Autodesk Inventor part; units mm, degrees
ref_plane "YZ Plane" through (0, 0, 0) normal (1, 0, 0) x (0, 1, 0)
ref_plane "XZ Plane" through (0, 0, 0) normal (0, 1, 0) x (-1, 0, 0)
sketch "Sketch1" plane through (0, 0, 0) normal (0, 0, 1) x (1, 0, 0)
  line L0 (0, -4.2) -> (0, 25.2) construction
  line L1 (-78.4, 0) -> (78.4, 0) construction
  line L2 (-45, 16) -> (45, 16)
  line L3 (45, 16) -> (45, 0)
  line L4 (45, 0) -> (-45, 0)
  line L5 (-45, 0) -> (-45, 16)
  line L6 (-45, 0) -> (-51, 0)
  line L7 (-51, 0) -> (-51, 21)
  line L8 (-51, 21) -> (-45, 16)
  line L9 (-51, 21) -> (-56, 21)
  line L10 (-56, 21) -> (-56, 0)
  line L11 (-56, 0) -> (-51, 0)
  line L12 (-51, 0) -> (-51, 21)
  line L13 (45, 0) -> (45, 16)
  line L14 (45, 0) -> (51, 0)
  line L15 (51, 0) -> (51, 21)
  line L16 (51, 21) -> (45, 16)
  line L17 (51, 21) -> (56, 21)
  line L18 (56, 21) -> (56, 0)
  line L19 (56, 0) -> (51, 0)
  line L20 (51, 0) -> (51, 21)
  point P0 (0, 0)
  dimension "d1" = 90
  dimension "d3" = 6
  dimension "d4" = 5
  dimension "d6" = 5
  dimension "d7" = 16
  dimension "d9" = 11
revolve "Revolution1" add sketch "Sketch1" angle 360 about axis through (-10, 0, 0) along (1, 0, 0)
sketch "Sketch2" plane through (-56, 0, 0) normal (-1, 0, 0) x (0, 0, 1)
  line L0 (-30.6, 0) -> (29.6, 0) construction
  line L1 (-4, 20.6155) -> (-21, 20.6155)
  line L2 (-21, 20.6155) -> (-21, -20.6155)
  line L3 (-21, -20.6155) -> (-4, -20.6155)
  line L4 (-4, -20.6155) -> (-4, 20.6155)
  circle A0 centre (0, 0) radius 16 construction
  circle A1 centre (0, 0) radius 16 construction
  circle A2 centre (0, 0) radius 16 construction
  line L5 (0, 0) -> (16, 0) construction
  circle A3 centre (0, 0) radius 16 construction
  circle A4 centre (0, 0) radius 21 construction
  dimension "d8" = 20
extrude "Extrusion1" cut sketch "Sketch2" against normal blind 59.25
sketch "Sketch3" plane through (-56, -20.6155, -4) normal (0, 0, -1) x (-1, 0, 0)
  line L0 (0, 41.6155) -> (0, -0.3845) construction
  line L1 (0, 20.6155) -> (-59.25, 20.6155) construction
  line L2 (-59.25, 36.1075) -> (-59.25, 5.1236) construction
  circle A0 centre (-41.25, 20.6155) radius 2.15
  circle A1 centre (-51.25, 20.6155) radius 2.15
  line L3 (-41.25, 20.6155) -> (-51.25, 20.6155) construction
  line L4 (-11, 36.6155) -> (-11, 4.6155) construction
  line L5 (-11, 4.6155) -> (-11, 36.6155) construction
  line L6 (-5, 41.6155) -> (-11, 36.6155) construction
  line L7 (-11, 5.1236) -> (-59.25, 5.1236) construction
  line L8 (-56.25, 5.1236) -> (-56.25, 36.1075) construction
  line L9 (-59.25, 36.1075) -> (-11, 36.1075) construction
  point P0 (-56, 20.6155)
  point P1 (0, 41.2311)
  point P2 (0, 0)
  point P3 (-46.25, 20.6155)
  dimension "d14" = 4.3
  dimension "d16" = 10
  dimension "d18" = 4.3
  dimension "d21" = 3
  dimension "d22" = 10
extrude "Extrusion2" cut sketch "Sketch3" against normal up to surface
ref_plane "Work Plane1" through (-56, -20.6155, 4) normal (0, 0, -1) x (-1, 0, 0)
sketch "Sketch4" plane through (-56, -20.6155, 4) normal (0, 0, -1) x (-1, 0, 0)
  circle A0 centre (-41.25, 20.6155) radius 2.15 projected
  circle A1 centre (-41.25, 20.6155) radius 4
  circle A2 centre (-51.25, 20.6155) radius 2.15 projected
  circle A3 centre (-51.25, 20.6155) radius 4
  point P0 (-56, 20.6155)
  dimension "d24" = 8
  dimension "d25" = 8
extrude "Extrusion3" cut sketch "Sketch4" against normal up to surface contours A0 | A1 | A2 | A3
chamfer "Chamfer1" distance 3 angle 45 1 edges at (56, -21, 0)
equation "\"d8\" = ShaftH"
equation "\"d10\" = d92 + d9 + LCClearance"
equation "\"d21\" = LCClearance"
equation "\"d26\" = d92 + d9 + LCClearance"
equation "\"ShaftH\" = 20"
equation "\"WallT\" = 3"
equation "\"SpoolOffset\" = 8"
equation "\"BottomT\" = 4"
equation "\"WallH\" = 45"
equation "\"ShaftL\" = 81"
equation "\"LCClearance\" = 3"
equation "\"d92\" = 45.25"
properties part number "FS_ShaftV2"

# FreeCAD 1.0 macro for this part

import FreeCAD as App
import Part
import Sketcher
Q = App.Units.Quantity


def edges_at(feature, points):
    """Names of the edges that pass closest to the given points."""
    edges = feature.Shape.Edges
    near = lambda p: min(range(len(edges)), key=lambda i: edges[i].distToShape(Part.Vertex(*p))[0])
    return sorted({f"Edge{near(p) + 1}" for p in points})


def add_polygon(sketch, points):
    """Adds a closed chain of lines whose ends are joined by coincident constraints."""
    first, n = sketch.GeometryCount, len(points)
    for a, b in zip(points, points[1:] + points[:1]):
        sketch.addGeometry(Part.LineSegment(App.Vector(*a, 0), App.Vector(*b, 0)), False)
    for i in range(n):
        sketch.addConstraint(Sketcher.Constraint("Coincident", first + i, 2, first + (i + 1) % n, 1))

doc = App.newDocument("Part")
params = doc.addObject("Spreadsheet::Sheet", "Params")
for row, (alias, value) in enumerate([
    ("sketch1_width", "90 mm"),
    ("sketch1_width2", "5 mm"),
    ("revolution_angle", "360 deg"),
    ("sketch2_height", "17 mm"),
    ("pocket1_length", "59.25 mm"),
    ("sketch3_diameter", "4.3 mm"),
    ("sketch4_diameter", "8 mm"),
    ("pocket3_length", "12 mm"),
    ("chamfer_size", "3 mm"),
], start=1):
    params.set(f"A{row}", alias)
    params.set(f"B{row}", "=" + value)
    params.setAlias(f"B{row}", alias)

body = doc.addObject("PartDesign::Body", "Body")

sketch1 = body.newObject("Sketcher::SketchObject", "Sketch")
sketch1.AttachmentSupport = (doc.getObject("XY_Plane"), [""])
sketch1.MapMode = "FlatFace"
add_polygon(sketch1, [(45, 16), (-45, 16), (-51, 21), (-56, 21), (-56, 0), (56, 0), (56, 21), (51, 21)])
sketch1.addConstraint(Sketcher.Constraint("Horizontal", 0))
sketch1.addConstraint(Sketcher.Constraint("Horizontal", 2))
sketch1.addConstraint(Sketcher.Constraint("Vertical", 3))
sketch1.addConstraint(Sketcher.Constraint("Horizontal", 4))
sketch1.addConstraint(Sketcher.Constraint("Vertical", 5))
sketch1.addConstraint(Sketcher.Constraint("Horizontal", 6))
sketch1.addConstraint(Sketcher.Constraint("Symmetric", 3, 2, 4, 2, -1, 1))
sketch1.addConstraint(Sketcher.Constraint("Symmetric", 1, 2, 6, 2, -2))
sketch1.addConstraint(Sketcher.Constraint("Equal", 1, 7))
sketch1.addConstraint(Sketcher.Constraint("DistanceX", 0, 2, 0, 1, Q("90 mm")))
sketch1.addConstraint(Sketcher.Constraint("DistanceX", 2, 2, 2, 1, Q("5 mm")))
sketch1.addConstraint(Sketcher.Constraint("DistanceY", -1, 1, 0, 2, Q("16 mm")))
sketch1.addConstraint(Sketcher.Constraint("DistanceX", 1, 2, 0, 2, Q("6 mm")))
sketch1.addConstraint(Sketcher.Constraint("DistanceY", 0, 2, 1, 2, Q("5 mm")))
sketch1.setExpression("Constraints[17]", "Params.sketch1_width")
sketch1.setExpression("Constraints[18]", "Params.sketch1_width2")
revolution = body.newObject("PartDesign::Revolution", "Revolution")
revolution.Profile = sketch1
revolution.ReferenceAxis = (sketch1, ["H_Axis"])
revolution.setExpression("Angle", "Params.revolution_angle")

sketch2 = body.newObject("Sketcher::SketchObject", "Sketch001")
sketch2.AttachmentSupport = (doc.getObject("YZ_Plane"), [""])
sketch2.MapMode = "FlatFace"
sketch2.AttachmentOffset = App.Placement(App.Vector(0, 0, -56), App.Rotation())
add_polygon(sketch2, [(-21, -4), (21, -4), (21, -21), (-21, -21)])
sketch2.addConstraint(Sketcher.Constraint("Horizontal", 0))
sketch2.addConstraint(Sketcher.Constraint("Vertical", 1))
sketch2.addConstraint(Sketcher.Constraint("Horizontal", 2))
sketch2.addConstraint(Sketcher.Constraint("Vertical", 3))
sketch2.addConstraint(Sketcher.Constraint("DistanceY", 1, 2, 1, 1, Q("17 mm")))
sketch2.addConstraint(Sketcher.Constraint("DistanceY", 0, 2, -1, 1, Q("4 mm")))
sketch2.addConstraint(Sketcher.Constraint("DistanceX", 0, 1, 0, 2, Q("41.231 mm")))
sketch2.addConstraint(Sketcher.Constraint("DistanceX", -1, 1, 0, 2, Q("20.6155 mm")))
sketch2.setExpression("Constraints[8]", "Params.sketch2_height")
pocket1 = body.newObject("PartDesign::Pocket", "Pocket")
pocket1.Profile = sketch2
pocket1.setExpression("Length", "Params.pocket1_length")
pocket1.Reversed = True

sketch3 = body.newObject("Sketcher::SketchObject", "Sketch002")
sketch3.AttachmentSupport = (doc.getObject("XY_Plane"), [""])
sketch3.MapMode = "FlatFace"
sketch3.AttachmentOffset = App.Placement(App.Vector(0, 0, -4), App.Rotation())
sketch3.addGeometry(Part.Circle(App.Vector(-14.8, 0, 0), App.Vector(0, 0, 1), 2.1), False)
sketch3.addGeometry(Part.Circle(App.Vector(-4.8, 0, 0), App.Vector(0, 0, 1), 2.1), False)
sketch3.addConstraint(Sketcher.Constraint("Equal", 0, 1))
sketch3.addConstraint(Sketcher.Constraint("PointOnObject", 0, 3, -1))
sketch3.addConstraint(Sketcher.Constraint("PointOnObject", 1, 3, -1))
sketch3.addConstraint(Sketcher.Constraint("Diameter", 0, Q("4.3 mm")))
sketch3.addConstraint(Sketcher.Constraint("DistanceX", 0, 3, 1, 3, Q("10 mm")))
sketch3.addConstraint(Sketcher.Constraint("DistanceX", 0, 3, -1, 1, Q("14.75 mm")))
sketch3.setExpression("Constraints[3]", "Params.sketch3_diameter")
pocket2 = body.newObject("PartDesign::Pocket", "Pocket001")
pocket2.Profile = sketch3
pocket2.Type = "UpToFirst"
pocket2.Reversed = True

sketch4 = body.newObject("Sketcher::SketchObject", "Sketch003")
sketch4.AttachmentSupport = (doc.getObject("XY_Plane"), [""])
sketch4.MapMode = "FlatFace"
sketch4.AttachmentOffset = App.Placement(App.Vector(0, 0, 4), App.Rotation())
sketch4.addGeometry(Part.Circle(App.Vector(-14.8, 0, 0), App.Vector(0, 0, 1), 4), False)
sketch4.addGeometry(Part.Circle(App.Vector(-4.8, 0, 0), App.Vector(0, 0, 1), 4), False)
sketch4.addConstraint(Sketcher.Constraint("Equal", 0, 1))
sketch4.addConstraint(Sketcher.Constraint("PointOnObject", 0, 3, -1))
sketch4.addConstraint(Sketcher.Constraint("PointOnObject", 1, 3, -1))
sketch4.addConstraint(Sketcher.Constraint("Diameter", 0, Q("8 mm")))
sketch4.addConstraint(Sketcher.Constraint("DistanceX", 0, 3, 1, 3, Q("10 mm")))
sketch4.addConstraint(Sketcher.Constraint("DistanceX", 0, 3, -1, 1, Q("14.75 mm")))
sketch4.setExpression("Constraints[3]", "Params.sketch4_diameter")
pocket3 = body.newObject("PartDesign::Pocket", "Pocket002")
pocket3.Profile = sketch4
pocket3.setExpression("Length", "Params.pocket3_length")
pocket3.Reversed = True
doc.recompute()

chamfer = body.newObject("PartDesign::Chamfer", "Chamfer")
chamfer.Base = (pocket3, edges_at(pocket3, [(56, -21, 0)]))
chamfer.setExpression("Size", "Params.chamfer_size")

doc.recompute()
